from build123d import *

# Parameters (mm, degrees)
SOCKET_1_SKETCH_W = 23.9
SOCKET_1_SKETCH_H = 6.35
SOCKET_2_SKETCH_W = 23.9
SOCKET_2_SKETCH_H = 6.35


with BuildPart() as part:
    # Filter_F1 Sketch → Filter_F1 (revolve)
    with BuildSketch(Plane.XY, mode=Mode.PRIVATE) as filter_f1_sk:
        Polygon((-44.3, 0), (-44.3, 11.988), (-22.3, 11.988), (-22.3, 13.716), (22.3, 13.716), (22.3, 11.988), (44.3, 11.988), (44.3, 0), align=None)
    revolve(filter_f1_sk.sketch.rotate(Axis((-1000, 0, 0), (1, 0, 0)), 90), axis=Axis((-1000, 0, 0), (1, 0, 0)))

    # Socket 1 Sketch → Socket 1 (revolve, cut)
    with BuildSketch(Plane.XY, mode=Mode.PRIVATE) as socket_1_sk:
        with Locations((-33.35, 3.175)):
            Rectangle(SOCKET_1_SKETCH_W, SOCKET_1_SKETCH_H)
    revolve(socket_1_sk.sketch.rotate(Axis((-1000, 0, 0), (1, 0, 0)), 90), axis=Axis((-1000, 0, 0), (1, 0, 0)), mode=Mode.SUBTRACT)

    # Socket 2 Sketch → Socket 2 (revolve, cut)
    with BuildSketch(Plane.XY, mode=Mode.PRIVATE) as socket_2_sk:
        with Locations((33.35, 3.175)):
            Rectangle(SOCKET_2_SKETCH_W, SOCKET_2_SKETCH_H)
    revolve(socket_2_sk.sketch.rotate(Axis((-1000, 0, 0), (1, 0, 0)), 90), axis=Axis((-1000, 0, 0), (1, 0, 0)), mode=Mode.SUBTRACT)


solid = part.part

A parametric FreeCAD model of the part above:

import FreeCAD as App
import Part
import Sketcher
Q = App.Units.Quantity

doc = App.newDocument("Part")
body = doc.addObject("PartDesign::Body", "Body")

# Sketch on XY plane
sketch1 = body.newObject("Sketcher::SketchObject", "Sketch")
sketch1.AttachmentSupport = (doc.getObject("XY_Plane"), [""])
sketch1.MapMode = "FlatFace"
sketch1.addGeometry(Part.LineSegment(App.Vector(-44.3, 11.988, 0), App.Vector(-44.3, 0, 0)), False)
sketch1.addGeometry(Part.LineSegment(App.Vector(-44.3, 0, 0), App.Vector(44.3, 0, 0)), False)
sketch1.addGeometry(Part.LineSegment(App.Vector(44.3, 0, 0), App.Vector(44.3, 11.988, 0)), False)
sketch1.addGeometry(Part.LineSegment(App.Vector(44.3, 11.988, 0), App.Vector(22.3, 11.988, 0)), False)
sketch1.addGeometry(Part.LineSegment(App.Vector(22.3, 11.988, 0), App.Vector(22.3, 13.716, 0)), False)
sketch1.addGeometry(Part.LineSegment(App.Vector(22.3, 13.716, 0), App.Vector(-22.3, 13.716, 0)), False)
sketch1.addGeometry(Part.LineSegment(App.Vector(-22.3, 13.716, 0), App.Vector(-22.3, 11.988, 0)), False)
sketch1.addGeometry(Part.LineSegment(App.Vector(-22.3, 11.988, 0), App.Vector(-44.3, 11.988, 0)), False)
sketch1.addConstraint(Sketcher.Constraint("Coincident", 0, 2, 1, 1))
sketch1.addConstraint(Sketcher.Constraint("Coincident", 1, 2, 2, 1))
sketch1.addConstraint(Sketcher.Constraint("Coincident", 2, 2, 3, 1))
sketch1.addConstraint(Sketcher.Constraint("Coincident", 3, 2, 4, 1))
sketch1.addConstraint(Sketcher.Constraint("Coincident", 4, 2, 5, 1))
sketch1.addConstraint(Sketcher.Constraint("Coincident", 5, 2, 6, 1))
sketch1.addConstraint(Sketcher.Constraint("Coincident", 6, 2, 7, 1))
sketch1.addConstraint(Sketcher.Constraint("Coincident", 7, 2, 0, 1))
sketch1.addConstraint(Sketcher.Constraint("Vertical", 0))
sketch1.addConstraint(Sketcher.Constraint("Horizontal", 1))
sketch1.addConstraint(Sketcher.Constraint("Vertical", 2))
sketch1.addConstraint(Sketcher.Constraint("Horizontal", 3))
sketch1.addConstraint(Sketcher.Constraint("Vertical", 4))
sketch1.addConstraint(Sketcher.Constraint("Horizontal", 5))
sketch1.addConstraint(Sketcher.Constraint("Vertical", 6))
sketch1.addConstraint(Sketcher.Constraint("Horizontal", 7))
sketch1.addConstraint(Sketcher.Constraint("Symmetric", 0, 2, 1, 2, -1, 1))
sketch1.addConstraint(Sketcher.Constraint("Symmetric", 3, 2, 6, 2, -2))
sketch1.addConstraint(Sketcher.Constraint("DistanceX", 3, 2, 3, 1, Q("22 mm")))
sketch1.addConstraint(Sketcher.Constraint("DistanceX", 1, 1, 1, 2, Q("88.6 mm")))
sketch1.addConstraint(Sketcher.Constraint("DistanceY", 0, 2, 0, 1, Q("11.988 mm")))
sketch1.addConstraint(Sketcher.Constraint("DistanceY", 4, 1, 4, 2, Q("1.728 mm")))
revolution = body.newObject("PartDesign::Revolution", "Revolution")
revolution.Profile = sketch1
revolution.ReferenceAxis = (sketch1, ["H_Axis"])
revolution.Angle = 360

# Sketch on XY plane
sketch2 = body.newObject("Sketcher::SketchObject", "Sketch001")
sketch2.AttachmentSupport = (doc.getObject("XY_Plane"), [""])
sketch2.MapMode = "FlatFace"
sketch2.addGeometry(Part.LineSegment(App.Vector(-45.3, 6.35, 0), App.Vector(-45.3, 0, 0)), False)
sketch2.addGeometry(Part.LineSegment(App.Vector(-45.3, 0, 0), App.Vector(-21.4, 0, 0)), False)
sketch2.addGeometry(Part.LineSegment(App.Vector(-21.4, 0, 0), App.Vector(-21.4, 6.35, 0)), False)
sketch2.addGeometry(Part.LineSegment(App.Vector(-21.4, 6.35, 0), App.Vector(-45.3, 6.35, 0)), False)
sketch2.addConstraint(Sketcher.Constraint("Coincident", 0, 2, 1, 1))
sketch2.addConstraint(Sketcher.Constraint("Coincident", 1, 2, 2, 1))
sketch2.addConstraint(Sketcher.Constraint("Coincident", 2, 2, 3, 1))
sketch2.addConstraint(Sketcher.Constraint("Coincident", 3, 2, 0, 1))
sketch2.addConstraint(Sketcher.Constraint("Vertical", 0))
sketch2.addConstraint(Sketcher.Constraint("Horizontal", 1))
sketch2.addConstraint(Sketcher.Constraint("Vertical", 2))
sketch2.addConstraint(Sketcher.Constraint("Horizontal", 3))
sketch2.addConstraint(Sketcher.Constraint("PointOnObject", 0, 2, -1))
sketch2.addConstraint(Sketcher.Constraint("DistanceX", 1, 1, 1, 2, Q("23.9 mm")))
sketch2.addConstraint(Sketcher.Constraint("DistanceY", 0, 2, 0, 1, Q("6.35 mm")))
sketch2.addConstraint(Sketcher.Constraint("DistanceX", 0, 2, -1, 1, Q("45.3 mm")))
groove = body.newObject("PartDesign::Groove", "Groove")
groove.Profile = sketch2
groove.ReferenceAxis = (sketch2, ["H_Axis"])
groove.Angle = 360

# Sketch on XY plane
sketch3 = body.newObject("Sketcher::SketchObject", "Sketch002")
sketch3.AttachmentSupport = (doc.getObject("XY_Plane"), [""])
sketch3.MapMode = "FlatFace"
sketch3.addGeometry(Part.LineSegment(App.Vector(21.4, 6.35, 0), App.Vector(21.4, 0, 0)), False)
sketch3.addGeometry(Part.LineSegment(App.Vector(21.4, 0, 0), App.Vector(45.3, 0, 0)), False)
sketch3.addGeometry(Part.LineSegment(App.Vector(45.3, 0, 0), App.Vector(45.3, 6.35, 0)), False)
sketch3.addGeometry(Part.LineSegment(App.Vector(45.3, 6.35, 0), App.Vector(21.4, 6.35, 0)), False)
sketch3.addConstraint(Sketcher.Constraint("Coincident", 0, 2, 1, 1))
sketch3.addConstraint(Sketcher.Constraint("Coincident", 1, 2, 2, 1))
sketch3.addConstraint(Sketcher.Constraint("Coincident", 2, 2, 3, 1))
sketch3.addConstraint(Sketcher.Constraint("Coincident", 3, 2, 0, 1))
sketch3.addConstraint(Sketcher.Constraint("Vertical", 0))
sketch3.addConstraint(Sketcher.Constraint("Horizontal", 1))
sketch3.addConstraint(Sketcher.Constraint("Vertical", 2))
sketch3.addConstraint(Sketcher.Constraint("Horizontal", 3))
sketch3.addConstraint(Sketcher.Constraint("PointOnObject", 0, 2, -1))
sketch3.addConstraint(Sketcher.Constraint("DistanceX", 1, 1, 1, 2, Q("23.9 mm")))
sketch3.addConstraint(Sketcher.Constraint("DistanceY", 0, 2, 0, 1, Q("6.35 mm")))
sketch3.addConstraint(Sketcher.Constraint("DistanceX", -1, 1, 0, 2, Q("21.4 mm")))
groove2 = body.newObject("PartDesign::Groove", "Groove001")
groove2.Profile = sketch3
groove2.ReferenceAxis = (sketch3, ["H_Axis"])
groove2.Angle = 360

doc.recompute()
